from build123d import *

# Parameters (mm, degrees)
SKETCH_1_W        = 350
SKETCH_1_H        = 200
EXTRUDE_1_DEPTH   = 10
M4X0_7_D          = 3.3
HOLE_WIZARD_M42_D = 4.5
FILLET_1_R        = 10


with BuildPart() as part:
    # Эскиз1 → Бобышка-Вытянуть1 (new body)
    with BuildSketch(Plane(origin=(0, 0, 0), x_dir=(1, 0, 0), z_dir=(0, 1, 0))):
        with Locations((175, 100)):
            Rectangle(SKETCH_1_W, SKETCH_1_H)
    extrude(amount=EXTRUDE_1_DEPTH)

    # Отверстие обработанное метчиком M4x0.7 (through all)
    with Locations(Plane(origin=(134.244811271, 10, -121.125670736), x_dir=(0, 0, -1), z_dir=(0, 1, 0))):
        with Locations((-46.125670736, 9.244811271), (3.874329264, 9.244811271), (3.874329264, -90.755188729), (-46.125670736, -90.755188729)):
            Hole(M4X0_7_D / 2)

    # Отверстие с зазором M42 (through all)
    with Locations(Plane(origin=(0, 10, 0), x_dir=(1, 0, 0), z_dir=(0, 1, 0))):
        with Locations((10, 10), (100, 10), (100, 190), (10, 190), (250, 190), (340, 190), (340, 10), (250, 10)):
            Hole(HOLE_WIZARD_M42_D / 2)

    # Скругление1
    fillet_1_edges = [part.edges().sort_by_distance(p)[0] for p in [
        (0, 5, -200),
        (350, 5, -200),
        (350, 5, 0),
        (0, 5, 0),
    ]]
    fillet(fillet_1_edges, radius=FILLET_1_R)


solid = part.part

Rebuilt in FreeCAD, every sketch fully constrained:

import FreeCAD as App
import Part
import Sketcher
from FreeCAD import Vector


def edges_at(feature, points):
    """Names of the edges that pass closest to the given points."""
    edges = feature.Shape.Edges
    near = lambda p: min(range(len(edges)), key=lambda i: edges[i].distToShape(Part.Vertex(*p))[0])
    return sorted({f"Edge{near(p) + 1}" for p in points})


def add_polygon(sketch, points):
    """Adds a closed chain of lines whose ends are joined by coincident constraints."""
    first, n = sketch.GeometryCount, len(points)
    for a, b in zip(points, points[1:] + points[:1]):
        sketch.addGeometry(Part.LineSegment(App.Vector(*a, 0), App.Vector(*b, 0)), False)
    for i in range(n):
        sketch.addConstraint(Sketcher.Constraint("Coincident", first + i, 2, first + (i + 1) % n, 1))

doc = App.newDocument("Part")
params = doc.addObject("Spreadsheet::Sheet", "Params")
for row, (alias, value) in enumerate([
    ("sketch1_width", "350 mm"),
    ("sketch1_height", "200 mm"),
    ("pad1_length", "10 mm"),
    ("sketch2_diameter", "3.3 mm"),
    ("hole_diameter", "3.3 mm"),
    ("sketch3_diameter", "4.5 mm"),
    ("hole2_diameter", "4.5 mm"),
    ("fillet_radius", "10 mm"),
], start=1):
    params.set(f"A{row}", alias)
    params.set(f"B{row}", "=" + value)
    params.setAlias(f"B{row}", alias)

body = doc.addObject("PartDesign::Body", "Body")

# Sketch on XZ plane
sketch1 = body.newObject("Sketcher::SketchObject", "Sketch")
sketch1.AttachmentSupport = (doc.getObject("XZ_Plane"), [""])
sketch1.MapMode = "FlatFace"
add_polygon(sketch1, [(0, -200), (0, 0), (350, 0), (350, -200)])  # lines 0-3
sketch1.addConstraint([
    Sketcher.Constraint("Vertical", 0),
    Sketcher.Constraint("Horizontal", 1),
    Sketcher.Constraint("Vertical", 2),
    Sketcher.Constraint("Horizontal", 3),
    Sketcher.Constraint("Coincident", 0, 2, -1, 1),
    Sketcher.Constraint("DistanceX", 1, 1, 1, 2, 350.0),
    Sketcher.Constraint("DistanceY", 0, 1, 0, 2, 200.0),
])
sketch1.setExpression("Constraints[9]", "Params.sketch1_width")
sketch1.setExpression("Constraints[10]", "Params.sketch1_height")
pad1 = body.newObject("PartDesign::Pad", "Pad")
pad1.Profile = sketch1
pad1.setExpression("Length", "Params.pad1_length")
pad1.Reversed = True

# Sketch on XZ plane
sketch2 = body.newObject("Sketcher::SketchObject", "Sketch001")
sketch2.AttachmentSupport = (doc.getObject("XZ_Plane"), [""])
sketch2.MapMode = "FlatFace"
sketch2.AttachmentOffset = App.Placement(Vector(0, 0, -10), App.Rotation())
sketch2.addGeometry([
    Part.Circle(Vector(125, -75, 0), Vector(0, 0, 1), 1.6),
    Part.Circle(Vector(125, -125, 0), Vector(0, 0, 1), 1.6),
    Part.Circle(Vector(225, -125, 0), Vector(0, 0, 1), 1.6),
    Part.Circle(Vector(225, -75, 0), Vector(0, 0, 1), 1.6),
], False)
sketch2.addConstraint([
    Sketcher.Constraint("Equal", 0, 1),
    Sketcher.Constraint("Equal", 1, 2),
    Sketcher.Constraint("Equal", 2, 3),
    Sketcher.Constraint("Horizontal", 1, 3, 2, 3),
    Sketcher.Constraint("Horizontal", 0, 3, 3, 3),
    Sketcher.Constraint("Vertical", 0, 3, 1, 3),
    Sketcher.Constraint("Vertical", 2, 3, 3, 3),
    Sketcher.Constraint("Diameter", 0, 3.3),
    Sketcher.Constraint("DistanceX", -1, 1, 0, 3, 125.0),
    Sketcher.Constraint("DistanceY", 0, 3, -1, 1, 75.0),
    Sketcher.Constraint("DistanceY", 1, 3, -1, 1, 125.0),
    Sketcher.Constraint("DistanceX", -1, 1, 2, 3, 225.0),
])
sketch2.setExpression("Constraints[7]", "Params.sketch2_diameter")
doc.recompute()
hole = body.newObject("PartDesign::Hole", "Hole")
hole.Profile = sketch2
hole.ThreadType = "None"
hole.setExpression("Diameter", "Params.hole_diameter")
hole.DepthType = "ThroughAll"
hole.Reversed = True

# Sketch on XZ plane
sketch3 = body.newObject("Sketcher::SketchObject", "Sketch002")
sketch3.AttachmentSupport = (doc.getObject("XZ_Plane"), [""])
sketch3.MapMode = "FlatFace"
sketch3.AttachmentOffset = App.Placement(Vector(0, 0, -10), App.Rotation())
sketch3.addGeometry([
    Part.Circle(Vector(10, -10, 0), Vector(0, 0, 1), 2.2),  # 0
    Part.Circle(Vector(100, -10, 0), Vector(0, 0, 1), 2.2),  # 1
    Part.Circle(Vector(100, -190, 0), Vector(0, 0, 1), 2.2),  # 2
    Part.Circle(Vector(10, -190, 0), Vector(0, 0, 1), 2.2),  # 3
    Part.Circle(Vector(250, -190, 0), Vector(0, 0, 1), 2.2),  # 4
    Part.Circle(Vector(340, -190, 0), Vector(0, 0, 1), 2.2),  # 5
    Part.Circle(Vector(340, -10, 0), Vector(0, 0, 1), 2.2),  # 6
    Part.Circle(Vector(250, -10, 0), Vector(0, 0, 1), 2.2),  # 7
], False)
sketch3.addConstraint([
    Sketcher.Constraint("Equal", 0, 1),
    Sketcher.Constraint("Equal", 1, 2),
    Sketcher.Constraint("Equal", 2, 3),
    Sketcher.Constraint("Equal", 3, 4),
    Sketcher.Constraint("Equal", 4, 5),
    Sketcher.Constraint("Equal", 5, 6),
    Sketcher.Constraint("Equal", 6, 7),
    Sketcher.Constraint("Horizontal", 0, 3, 1, 3),
    Sketcher.Constraint("Horizontal", 2, 3, 3, 3),
    Sketcher.Constraint("Horizontal", 3, 3, 4, 3),
    Sketcher.Constraint("Horizontal", 4, 3, 5, 3),
    Sketcher.Constraint("Horizontal", 1, 3, 6, 3),
    Sketcher.Constraint("Horizontal", 6, 3, 7, 3),
    Sketcher.Constraint("Vertical", 1, 3, 2, 3),
    Sketcher.Constraint("Vertical", 0, 3, 3, 3),
    Sketcher.Constraint("Vertical", 5, 3, 6, 3),
    Sketcher.Constraint("Vertical", 4, 3, 7, 3),
    Sketcher.Constraint("Diameter", 0, 4.5),
    Sketcher.Constraint("DistanceX", -1, 1, 0, 3, 10.0),
    Sketcher.Constraint("DistanceY", 0, 3, -1, 1, 10.0),
    Sketcher.Constraint("DistanceX", -1, 1, 1, 3, 100.0),
    Sketcher.Constraint("DistanceY", 2, 3, -1, 1, 190.0),
    Sketcher.Constraint("DistanceX", -1, 1, 4, 3, 250.0),
    Sketcher.Constraint("DistanceX", -1, 1, 5, 3, 340.0),
])
sketch3.setExpression("Constraints[17]", "Params.sketch3_diameter")
doc.recompute()
hole2 = body.newObject("PartDesign::Hole", "Hole001")
hole2.Profile = sketch3
hole2.ThreadType = "None"
hole2.setExpression("Diameter", "Params.hole2_diameter")
hole2.DepthType = "ThroughAll"
hole2.Reversed = True
doc.recompute()

fillet = body.newObject("PartDesign::Fillet", "Fillet")
fillet.Base = (hole2, edges_at(hole2, [
    (0, 5, -200),
    (350, 5, -200),
    (350, 5, 0),
    (0, 5, 0),
]))
fillet.setExpression("Radius", "Params.fillet_radius")

doc.recompute()
